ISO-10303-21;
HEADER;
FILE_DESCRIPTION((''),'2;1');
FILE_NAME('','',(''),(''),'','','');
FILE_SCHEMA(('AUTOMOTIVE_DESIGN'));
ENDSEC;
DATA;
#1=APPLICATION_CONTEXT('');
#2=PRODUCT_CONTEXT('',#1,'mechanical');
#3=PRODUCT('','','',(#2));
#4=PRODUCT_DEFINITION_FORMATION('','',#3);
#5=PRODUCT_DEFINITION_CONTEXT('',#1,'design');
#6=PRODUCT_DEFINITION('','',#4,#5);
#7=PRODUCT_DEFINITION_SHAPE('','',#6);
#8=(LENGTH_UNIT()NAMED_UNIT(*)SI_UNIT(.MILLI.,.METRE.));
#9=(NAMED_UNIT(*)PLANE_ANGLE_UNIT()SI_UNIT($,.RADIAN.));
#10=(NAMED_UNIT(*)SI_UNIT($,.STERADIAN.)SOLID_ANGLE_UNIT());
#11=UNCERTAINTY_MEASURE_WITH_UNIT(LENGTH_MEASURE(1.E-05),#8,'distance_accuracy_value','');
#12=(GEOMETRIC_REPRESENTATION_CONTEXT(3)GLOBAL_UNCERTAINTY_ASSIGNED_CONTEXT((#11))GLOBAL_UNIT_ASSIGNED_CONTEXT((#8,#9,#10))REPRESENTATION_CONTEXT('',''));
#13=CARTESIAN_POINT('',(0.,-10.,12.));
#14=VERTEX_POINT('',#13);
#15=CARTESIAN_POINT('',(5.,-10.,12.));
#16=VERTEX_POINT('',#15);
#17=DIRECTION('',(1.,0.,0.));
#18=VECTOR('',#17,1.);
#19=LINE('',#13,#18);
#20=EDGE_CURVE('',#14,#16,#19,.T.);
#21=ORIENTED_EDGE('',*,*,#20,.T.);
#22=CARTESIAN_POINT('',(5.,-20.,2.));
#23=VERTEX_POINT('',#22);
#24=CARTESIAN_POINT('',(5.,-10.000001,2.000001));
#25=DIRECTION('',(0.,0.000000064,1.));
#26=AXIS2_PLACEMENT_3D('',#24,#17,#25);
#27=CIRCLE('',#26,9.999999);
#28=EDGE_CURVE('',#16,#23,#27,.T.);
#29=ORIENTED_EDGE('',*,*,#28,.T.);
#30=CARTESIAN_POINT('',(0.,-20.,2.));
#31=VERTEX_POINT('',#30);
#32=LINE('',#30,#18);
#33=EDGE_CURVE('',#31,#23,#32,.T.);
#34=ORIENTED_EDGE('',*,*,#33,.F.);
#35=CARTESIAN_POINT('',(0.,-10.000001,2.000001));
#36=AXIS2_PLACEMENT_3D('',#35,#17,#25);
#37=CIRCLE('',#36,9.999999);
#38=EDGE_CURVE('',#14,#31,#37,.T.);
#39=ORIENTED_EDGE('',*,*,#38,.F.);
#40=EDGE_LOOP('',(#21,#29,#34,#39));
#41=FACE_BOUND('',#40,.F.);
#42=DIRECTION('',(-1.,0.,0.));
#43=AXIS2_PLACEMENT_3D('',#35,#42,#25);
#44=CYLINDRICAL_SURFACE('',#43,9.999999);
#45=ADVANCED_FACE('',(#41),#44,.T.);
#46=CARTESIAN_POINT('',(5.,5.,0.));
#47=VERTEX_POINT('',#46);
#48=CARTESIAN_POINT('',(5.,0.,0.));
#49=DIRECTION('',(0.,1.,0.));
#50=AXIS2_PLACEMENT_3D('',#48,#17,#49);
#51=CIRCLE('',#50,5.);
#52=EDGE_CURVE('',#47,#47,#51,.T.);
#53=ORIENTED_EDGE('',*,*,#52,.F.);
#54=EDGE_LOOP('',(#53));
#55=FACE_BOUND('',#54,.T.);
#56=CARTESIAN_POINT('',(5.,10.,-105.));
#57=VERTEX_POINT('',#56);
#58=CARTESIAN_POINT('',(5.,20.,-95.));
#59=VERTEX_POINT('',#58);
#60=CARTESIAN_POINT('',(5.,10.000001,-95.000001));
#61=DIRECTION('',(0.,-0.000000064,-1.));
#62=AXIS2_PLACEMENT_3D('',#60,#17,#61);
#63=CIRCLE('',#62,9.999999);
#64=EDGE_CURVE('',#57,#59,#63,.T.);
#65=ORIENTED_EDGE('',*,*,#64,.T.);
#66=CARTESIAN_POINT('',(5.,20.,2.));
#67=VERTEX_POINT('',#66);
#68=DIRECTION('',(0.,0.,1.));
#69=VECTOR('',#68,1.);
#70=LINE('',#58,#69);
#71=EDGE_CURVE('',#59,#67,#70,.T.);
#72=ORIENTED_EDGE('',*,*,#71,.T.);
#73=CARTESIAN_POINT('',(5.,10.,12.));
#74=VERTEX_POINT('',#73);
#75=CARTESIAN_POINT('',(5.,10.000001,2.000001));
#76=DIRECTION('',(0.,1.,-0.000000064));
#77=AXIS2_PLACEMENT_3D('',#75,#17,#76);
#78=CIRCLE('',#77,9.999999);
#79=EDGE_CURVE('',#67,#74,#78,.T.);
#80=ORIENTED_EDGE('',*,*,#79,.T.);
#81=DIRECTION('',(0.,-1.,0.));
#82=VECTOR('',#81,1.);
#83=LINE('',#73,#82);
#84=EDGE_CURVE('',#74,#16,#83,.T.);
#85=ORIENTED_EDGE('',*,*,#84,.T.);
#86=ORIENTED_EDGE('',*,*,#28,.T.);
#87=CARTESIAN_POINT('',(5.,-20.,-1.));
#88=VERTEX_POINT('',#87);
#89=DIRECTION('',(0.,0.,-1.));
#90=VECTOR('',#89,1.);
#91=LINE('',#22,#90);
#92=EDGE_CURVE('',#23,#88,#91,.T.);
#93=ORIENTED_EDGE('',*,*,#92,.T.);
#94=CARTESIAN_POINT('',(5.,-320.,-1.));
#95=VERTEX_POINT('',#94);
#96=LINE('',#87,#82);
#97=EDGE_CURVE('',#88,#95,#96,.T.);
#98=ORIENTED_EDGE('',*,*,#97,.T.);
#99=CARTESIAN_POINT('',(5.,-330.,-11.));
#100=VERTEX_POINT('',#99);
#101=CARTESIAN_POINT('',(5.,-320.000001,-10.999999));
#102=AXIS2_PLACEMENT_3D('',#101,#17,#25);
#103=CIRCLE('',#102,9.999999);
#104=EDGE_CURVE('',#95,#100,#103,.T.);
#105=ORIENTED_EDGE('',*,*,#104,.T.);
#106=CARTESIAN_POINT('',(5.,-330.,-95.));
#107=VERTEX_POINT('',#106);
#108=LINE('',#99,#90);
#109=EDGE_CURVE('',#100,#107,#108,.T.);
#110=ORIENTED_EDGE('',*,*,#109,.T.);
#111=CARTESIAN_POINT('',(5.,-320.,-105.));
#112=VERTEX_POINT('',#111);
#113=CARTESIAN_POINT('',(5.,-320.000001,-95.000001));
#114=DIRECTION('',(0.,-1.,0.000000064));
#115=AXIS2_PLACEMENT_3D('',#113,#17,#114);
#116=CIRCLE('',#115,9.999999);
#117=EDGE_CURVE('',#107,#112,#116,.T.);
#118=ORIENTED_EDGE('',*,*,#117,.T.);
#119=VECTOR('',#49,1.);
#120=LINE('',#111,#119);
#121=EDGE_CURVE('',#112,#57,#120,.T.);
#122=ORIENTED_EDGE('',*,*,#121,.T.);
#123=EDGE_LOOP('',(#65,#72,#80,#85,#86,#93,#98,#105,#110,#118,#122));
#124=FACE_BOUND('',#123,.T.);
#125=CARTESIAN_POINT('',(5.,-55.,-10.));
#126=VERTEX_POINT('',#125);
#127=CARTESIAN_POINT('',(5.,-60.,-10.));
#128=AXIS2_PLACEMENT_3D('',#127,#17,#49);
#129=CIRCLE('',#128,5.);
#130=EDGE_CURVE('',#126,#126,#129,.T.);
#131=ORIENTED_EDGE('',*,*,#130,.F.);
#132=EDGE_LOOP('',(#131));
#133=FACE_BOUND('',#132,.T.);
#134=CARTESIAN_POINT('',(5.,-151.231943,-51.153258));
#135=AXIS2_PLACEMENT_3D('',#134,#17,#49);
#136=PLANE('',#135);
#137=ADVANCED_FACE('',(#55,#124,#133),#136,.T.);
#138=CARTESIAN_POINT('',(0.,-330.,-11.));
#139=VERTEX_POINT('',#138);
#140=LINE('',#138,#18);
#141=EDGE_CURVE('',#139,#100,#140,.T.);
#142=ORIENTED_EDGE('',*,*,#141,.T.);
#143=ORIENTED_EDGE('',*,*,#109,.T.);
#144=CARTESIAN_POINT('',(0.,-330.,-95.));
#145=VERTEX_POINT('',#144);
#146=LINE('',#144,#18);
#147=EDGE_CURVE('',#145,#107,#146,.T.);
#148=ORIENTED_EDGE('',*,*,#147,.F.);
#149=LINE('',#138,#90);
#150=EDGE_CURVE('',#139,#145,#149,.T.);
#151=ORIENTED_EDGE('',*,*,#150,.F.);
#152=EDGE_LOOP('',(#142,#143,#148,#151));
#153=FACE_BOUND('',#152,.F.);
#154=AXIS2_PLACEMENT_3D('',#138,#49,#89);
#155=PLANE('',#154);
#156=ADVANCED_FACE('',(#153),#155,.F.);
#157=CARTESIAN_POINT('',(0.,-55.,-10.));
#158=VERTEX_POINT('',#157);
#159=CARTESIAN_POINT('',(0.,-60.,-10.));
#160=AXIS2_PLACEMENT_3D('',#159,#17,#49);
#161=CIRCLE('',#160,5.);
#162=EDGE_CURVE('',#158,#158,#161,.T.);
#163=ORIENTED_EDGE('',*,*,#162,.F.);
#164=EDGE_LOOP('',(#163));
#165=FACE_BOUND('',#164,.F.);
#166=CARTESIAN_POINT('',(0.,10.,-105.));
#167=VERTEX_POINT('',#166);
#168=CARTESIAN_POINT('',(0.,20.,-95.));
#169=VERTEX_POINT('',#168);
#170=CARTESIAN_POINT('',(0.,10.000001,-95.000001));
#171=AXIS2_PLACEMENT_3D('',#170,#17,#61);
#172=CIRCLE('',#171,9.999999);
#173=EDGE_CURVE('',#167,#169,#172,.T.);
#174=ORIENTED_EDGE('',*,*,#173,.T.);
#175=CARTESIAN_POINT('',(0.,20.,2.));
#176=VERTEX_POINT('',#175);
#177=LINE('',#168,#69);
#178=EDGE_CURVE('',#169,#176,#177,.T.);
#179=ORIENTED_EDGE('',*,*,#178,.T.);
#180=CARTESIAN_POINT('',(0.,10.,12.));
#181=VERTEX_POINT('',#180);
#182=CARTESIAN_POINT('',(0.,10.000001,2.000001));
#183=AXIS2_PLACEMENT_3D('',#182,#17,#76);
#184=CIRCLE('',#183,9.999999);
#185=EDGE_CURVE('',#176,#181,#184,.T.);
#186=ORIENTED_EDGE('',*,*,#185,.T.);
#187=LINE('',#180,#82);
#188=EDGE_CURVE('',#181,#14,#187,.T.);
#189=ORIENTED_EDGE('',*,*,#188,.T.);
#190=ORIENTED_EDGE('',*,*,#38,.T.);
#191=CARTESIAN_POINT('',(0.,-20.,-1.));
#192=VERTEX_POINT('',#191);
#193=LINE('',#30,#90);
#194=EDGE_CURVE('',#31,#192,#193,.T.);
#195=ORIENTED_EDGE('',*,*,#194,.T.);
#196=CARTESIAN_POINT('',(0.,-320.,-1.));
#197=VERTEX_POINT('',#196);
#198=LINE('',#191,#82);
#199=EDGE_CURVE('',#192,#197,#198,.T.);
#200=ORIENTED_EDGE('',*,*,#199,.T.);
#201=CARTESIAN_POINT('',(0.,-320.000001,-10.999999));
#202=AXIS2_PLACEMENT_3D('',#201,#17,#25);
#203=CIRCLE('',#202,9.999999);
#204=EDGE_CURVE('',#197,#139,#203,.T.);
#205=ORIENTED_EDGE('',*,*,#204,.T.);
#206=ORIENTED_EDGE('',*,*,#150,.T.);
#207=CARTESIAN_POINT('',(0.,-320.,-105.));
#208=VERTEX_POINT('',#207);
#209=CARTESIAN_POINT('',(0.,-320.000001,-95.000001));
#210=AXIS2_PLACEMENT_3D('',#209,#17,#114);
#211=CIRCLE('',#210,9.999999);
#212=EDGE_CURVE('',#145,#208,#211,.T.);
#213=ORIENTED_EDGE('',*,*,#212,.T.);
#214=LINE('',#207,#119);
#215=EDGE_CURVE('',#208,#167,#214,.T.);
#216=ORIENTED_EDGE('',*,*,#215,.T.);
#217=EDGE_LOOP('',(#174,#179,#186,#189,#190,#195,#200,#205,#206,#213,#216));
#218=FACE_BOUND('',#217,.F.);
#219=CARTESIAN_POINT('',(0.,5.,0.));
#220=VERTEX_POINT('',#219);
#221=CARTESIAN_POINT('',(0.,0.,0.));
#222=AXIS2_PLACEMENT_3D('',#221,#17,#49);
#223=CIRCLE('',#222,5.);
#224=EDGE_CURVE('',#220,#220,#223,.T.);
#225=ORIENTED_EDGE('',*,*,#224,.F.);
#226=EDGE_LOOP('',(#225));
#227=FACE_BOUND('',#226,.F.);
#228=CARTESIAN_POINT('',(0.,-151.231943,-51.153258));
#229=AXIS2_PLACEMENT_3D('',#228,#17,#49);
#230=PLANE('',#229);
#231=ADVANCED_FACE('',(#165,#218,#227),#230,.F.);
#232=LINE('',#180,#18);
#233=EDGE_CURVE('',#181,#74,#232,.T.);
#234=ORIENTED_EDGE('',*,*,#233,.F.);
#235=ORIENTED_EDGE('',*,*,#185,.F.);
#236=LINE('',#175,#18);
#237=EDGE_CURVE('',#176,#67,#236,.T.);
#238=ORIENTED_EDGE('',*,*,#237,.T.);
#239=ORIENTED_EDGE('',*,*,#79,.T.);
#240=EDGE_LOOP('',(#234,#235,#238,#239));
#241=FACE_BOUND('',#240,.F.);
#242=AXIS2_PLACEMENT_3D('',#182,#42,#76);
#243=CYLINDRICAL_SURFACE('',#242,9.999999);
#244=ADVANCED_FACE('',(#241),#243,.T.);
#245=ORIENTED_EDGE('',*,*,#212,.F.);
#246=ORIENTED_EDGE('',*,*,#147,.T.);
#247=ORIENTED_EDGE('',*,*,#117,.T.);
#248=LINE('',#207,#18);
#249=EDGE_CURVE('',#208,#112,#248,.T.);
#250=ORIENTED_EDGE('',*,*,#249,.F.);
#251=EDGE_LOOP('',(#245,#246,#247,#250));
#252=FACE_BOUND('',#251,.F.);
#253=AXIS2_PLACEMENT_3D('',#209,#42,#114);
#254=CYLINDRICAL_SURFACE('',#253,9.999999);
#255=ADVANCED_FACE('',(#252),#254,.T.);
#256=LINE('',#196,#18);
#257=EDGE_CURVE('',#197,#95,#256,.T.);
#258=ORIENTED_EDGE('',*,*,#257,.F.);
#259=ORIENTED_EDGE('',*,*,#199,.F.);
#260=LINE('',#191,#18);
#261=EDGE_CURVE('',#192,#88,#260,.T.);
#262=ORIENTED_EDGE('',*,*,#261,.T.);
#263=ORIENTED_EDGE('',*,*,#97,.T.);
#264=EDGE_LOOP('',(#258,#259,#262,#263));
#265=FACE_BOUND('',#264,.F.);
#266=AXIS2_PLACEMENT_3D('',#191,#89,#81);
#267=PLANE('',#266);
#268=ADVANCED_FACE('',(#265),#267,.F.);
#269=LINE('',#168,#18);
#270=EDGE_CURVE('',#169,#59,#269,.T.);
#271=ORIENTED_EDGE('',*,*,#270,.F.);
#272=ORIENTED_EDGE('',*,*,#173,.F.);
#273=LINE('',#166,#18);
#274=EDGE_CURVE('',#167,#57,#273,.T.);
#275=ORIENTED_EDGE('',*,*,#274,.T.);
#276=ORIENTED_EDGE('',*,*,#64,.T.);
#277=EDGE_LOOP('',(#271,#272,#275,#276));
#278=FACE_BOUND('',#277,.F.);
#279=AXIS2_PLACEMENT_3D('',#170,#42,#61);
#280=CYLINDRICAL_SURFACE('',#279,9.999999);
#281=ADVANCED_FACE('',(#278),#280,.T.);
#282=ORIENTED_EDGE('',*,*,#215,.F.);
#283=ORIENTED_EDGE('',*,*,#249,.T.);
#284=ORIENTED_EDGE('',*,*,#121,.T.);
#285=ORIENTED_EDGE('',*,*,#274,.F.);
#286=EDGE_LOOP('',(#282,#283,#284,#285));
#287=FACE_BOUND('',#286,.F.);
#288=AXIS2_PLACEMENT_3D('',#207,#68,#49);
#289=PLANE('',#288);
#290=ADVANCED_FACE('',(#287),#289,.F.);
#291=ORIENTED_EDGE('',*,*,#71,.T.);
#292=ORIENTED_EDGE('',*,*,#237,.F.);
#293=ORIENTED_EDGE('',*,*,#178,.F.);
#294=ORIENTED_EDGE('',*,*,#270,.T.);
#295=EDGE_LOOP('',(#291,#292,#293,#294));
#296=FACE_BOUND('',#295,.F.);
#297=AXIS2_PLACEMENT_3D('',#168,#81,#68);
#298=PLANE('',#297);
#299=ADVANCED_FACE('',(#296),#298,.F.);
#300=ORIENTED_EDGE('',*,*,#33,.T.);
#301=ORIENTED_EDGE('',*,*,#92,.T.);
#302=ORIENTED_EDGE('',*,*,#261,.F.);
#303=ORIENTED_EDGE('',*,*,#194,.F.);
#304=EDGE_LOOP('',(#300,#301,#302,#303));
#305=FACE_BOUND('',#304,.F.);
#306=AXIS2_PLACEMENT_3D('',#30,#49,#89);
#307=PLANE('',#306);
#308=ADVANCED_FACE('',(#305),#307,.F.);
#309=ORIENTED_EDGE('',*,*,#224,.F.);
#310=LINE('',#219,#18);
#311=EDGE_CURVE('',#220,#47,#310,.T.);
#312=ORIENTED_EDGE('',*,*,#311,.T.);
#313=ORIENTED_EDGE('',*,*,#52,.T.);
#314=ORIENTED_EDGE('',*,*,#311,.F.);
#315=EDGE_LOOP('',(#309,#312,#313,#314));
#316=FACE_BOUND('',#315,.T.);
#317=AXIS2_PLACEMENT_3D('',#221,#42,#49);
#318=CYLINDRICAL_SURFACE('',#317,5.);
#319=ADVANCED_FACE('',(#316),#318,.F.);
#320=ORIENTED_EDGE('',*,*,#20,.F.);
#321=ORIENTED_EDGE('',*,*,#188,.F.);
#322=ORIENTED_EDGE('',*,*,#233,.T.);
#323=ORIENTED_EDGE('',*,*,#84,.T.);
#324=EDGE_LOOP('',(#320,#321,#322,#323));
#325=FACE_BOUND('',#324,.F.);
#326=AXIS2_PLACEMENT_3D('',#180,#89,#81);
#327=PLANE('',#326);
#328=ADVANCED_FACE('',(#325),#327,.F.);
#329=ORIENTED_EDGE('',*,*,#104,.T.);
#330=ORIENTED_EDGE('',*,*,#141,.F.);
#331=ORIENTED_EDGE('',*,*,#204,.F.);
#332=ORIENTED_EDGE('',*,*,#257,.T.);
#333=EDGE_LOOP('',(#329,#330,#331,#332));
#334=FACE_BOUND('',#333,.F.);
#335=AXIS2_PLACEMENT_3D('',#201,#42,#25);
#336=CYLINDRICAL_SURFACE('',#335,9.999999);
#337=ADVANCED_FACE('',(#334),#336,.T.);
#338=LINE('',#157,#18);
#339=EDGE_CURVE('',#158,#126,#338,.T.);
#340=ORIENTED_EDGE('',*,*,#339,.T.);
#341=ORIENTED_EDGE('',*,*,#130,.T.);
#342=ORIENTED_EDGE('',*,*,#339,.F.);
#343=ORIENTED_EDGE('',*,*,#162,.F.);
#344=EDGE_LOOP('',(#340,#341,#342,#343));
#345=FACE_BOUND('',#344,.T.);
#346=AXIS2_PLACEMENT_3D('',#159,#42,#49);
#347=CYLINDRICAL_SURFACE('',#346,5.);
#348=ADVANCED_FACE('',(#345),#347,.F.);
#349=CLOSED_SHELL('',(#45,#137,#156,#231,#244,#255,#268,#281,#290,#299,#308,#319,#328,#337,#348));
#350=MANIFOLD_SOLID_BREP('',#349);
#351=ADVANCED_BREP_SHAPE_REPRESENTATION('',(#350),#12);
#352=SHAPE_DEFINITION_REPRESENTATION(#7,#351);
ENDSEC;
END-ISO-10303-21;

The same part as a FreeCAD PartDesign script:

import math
import FreeCAD as App
import Part
import Sketcher
Q = App.Units.Quantity

doc = App.newDocument("Part")
body = doc.addObject("PartDesign::Body", "Body")

# Sketch on YZ plane
sketch1 = body.newObject("Sketcher::SketchObject", "Sketch")
sketch1.AttachmentSupport = (doc.getObject("YZ_Plane"), [""])
sketch1.MapMode = "FlatFace"
sketch1.addGeometry([
    Part.LineSegment(App.Vector(-20, -1, 0), App.Vector(-320, -1, 0)),  # 0
    Part.ArcOfCircle(Part.Circle(App.Vector(-320, -11, 0), App.Vector(0, 0, 1), 10), math.radians(90), math.radians(180)),  # 1
    Part.LineSegment(App.Vector(-330, -11, 0), App.Vector(-330, -95, 0)),  # 2
    Part.ArcOfCircle(Part.Circle(App.Vector(-320, -95, 0), App.Vector(0, 0, 1), 10), math.radians(180), math.radians(270)),  # 3
    Part.LineSegment(App.Vector(-320, -105, 0), App.Vector(10, -105, 0)),  # 4
    Part.ArcOfCircle(Part.Circle(App.Vector(10, -95, 0), App.Vector(0, 0, 1), 10), math.radians(-90), math.radians(0)),  # 5
    Part.LineSegment(App.Vector(20, -95, 0), App.Vector(20, 2, 0)),  # 6
    Part.ArcOfCircle(Part.Circle(App.Vector(10, 2, 0), App.Vector(0, 0, 1), 10), math.radians(0), math.radians(90)),  # 7
    Part.LineSegment(App.Vector(10, 12, 0), App.Vector(-10, 12, 0)),  # 8
    Part.ArcOfCircle(Part.Circle(App.Vector(-10, 2, 0), App.Vector(0, 0, 1), 10), math.radians(90), math.radians(180)),  # 9
    Part.LineSegment(App.Vector(-20, 2, 0), App.Vector(-20, -1, 0)),  # 10
    Part.Circle(App.Vector(-60, -10, 0), App.Vector(0, 0, 1), 5),  # 11
    Part.Circle(App.Vector(0, 0, 0), App.Vector(0, 0, 1), 5),  # 12
], False)
sketch1.addConstraint([
    Sketcher.Constraint("Tangent", 0, 2, 1, 1),
    Sketcher.Constraint("Tangent", 1, 2, 2, 1),
    Sketcher.Constraint("Tangent", 2, 2, 3, 1),
    Sketcher.Constraint("Tangent", 3, 2, 4, 1),
    Sketcher.Constraint("Tangent", 4, 2, 5, 1),
    Sketcher.Constraint("Tangent", 5, 2, 6, 1),
    Sketcher.Constraint("Tangent", 6, 2, 7, 1),
    Sketcher.Constraint("Tangent", 7, 2, 8, 1),
    Sketcher.Constraint("Tangent", 8, 2, 9, 1),
    Sketcher.Constraint("Tangent", 9, 2, 10, 1),
    Sketcher.Constraint("Coincident", 10, 2, 0, 1),
    Sketcher.Constraint("Horizontal", 0),
    Sketcher.Constraint("Vertical", 2),
    Sketcher.Constraint("Horizontal", 4),
    Sketcher.Constraint("Vertical", 6),
    Sketcher.Constraint("Horizontal", 8),
    Sketcher.Constraint("Vertical", 10),
    Sketcher.Constraint("Coincident", 12, 3, -1, 1),
    Sketcher.Constraint("Equal", 1, 3),
    Sketcher.Constraint("Equal", 3, 5),
    Sketcher.Constraint("Equal", 5, 7),
    Sketcher.Constraint("Equal", 7, 9),
    Sketcher.Constraint("Equal", 11, 12),
    Sketcher.Constraint("Diameter", 11, Q("10 mm")),
    Sketcher.Constraint("Radius", 1, Q("9.999999 mm")),
    Sketcher.Constraint("DistanceX", 0, 2, 0, 1, Q("300 mm")),
    Sketcher.Constraint("DistanceX", 4, 1, 4, 2, Q("330 mm")),
    Sketcher.Constraint("DistanceY", 2, 2, 2, 1, Q("84 mm")),
    Sketcher.Constraint("DistanceY", 6, 1, 6, 2, Q("97 mm")),
    Sketcher.Constraint("DistanceX", 1, 3, -1, 1, Q("320.000001 mm")),
    Sketcher.Constraint("DistanceY", 1, 3, -1, 1, Q("10.999999 mm")),
    Sketcher.Constraint("DistanceX", 11, 3, -1, 1, Q("60 mm")),
    Sketcher.Constraint("DistanceY", 11, 3, -1, 1, Q("10 mm")),
])
pad1 = body.newObject("PartDesign::Pad", "Pad")
pad1.Profile = sketch1
pad1.Length = 5

doc.recompute()
